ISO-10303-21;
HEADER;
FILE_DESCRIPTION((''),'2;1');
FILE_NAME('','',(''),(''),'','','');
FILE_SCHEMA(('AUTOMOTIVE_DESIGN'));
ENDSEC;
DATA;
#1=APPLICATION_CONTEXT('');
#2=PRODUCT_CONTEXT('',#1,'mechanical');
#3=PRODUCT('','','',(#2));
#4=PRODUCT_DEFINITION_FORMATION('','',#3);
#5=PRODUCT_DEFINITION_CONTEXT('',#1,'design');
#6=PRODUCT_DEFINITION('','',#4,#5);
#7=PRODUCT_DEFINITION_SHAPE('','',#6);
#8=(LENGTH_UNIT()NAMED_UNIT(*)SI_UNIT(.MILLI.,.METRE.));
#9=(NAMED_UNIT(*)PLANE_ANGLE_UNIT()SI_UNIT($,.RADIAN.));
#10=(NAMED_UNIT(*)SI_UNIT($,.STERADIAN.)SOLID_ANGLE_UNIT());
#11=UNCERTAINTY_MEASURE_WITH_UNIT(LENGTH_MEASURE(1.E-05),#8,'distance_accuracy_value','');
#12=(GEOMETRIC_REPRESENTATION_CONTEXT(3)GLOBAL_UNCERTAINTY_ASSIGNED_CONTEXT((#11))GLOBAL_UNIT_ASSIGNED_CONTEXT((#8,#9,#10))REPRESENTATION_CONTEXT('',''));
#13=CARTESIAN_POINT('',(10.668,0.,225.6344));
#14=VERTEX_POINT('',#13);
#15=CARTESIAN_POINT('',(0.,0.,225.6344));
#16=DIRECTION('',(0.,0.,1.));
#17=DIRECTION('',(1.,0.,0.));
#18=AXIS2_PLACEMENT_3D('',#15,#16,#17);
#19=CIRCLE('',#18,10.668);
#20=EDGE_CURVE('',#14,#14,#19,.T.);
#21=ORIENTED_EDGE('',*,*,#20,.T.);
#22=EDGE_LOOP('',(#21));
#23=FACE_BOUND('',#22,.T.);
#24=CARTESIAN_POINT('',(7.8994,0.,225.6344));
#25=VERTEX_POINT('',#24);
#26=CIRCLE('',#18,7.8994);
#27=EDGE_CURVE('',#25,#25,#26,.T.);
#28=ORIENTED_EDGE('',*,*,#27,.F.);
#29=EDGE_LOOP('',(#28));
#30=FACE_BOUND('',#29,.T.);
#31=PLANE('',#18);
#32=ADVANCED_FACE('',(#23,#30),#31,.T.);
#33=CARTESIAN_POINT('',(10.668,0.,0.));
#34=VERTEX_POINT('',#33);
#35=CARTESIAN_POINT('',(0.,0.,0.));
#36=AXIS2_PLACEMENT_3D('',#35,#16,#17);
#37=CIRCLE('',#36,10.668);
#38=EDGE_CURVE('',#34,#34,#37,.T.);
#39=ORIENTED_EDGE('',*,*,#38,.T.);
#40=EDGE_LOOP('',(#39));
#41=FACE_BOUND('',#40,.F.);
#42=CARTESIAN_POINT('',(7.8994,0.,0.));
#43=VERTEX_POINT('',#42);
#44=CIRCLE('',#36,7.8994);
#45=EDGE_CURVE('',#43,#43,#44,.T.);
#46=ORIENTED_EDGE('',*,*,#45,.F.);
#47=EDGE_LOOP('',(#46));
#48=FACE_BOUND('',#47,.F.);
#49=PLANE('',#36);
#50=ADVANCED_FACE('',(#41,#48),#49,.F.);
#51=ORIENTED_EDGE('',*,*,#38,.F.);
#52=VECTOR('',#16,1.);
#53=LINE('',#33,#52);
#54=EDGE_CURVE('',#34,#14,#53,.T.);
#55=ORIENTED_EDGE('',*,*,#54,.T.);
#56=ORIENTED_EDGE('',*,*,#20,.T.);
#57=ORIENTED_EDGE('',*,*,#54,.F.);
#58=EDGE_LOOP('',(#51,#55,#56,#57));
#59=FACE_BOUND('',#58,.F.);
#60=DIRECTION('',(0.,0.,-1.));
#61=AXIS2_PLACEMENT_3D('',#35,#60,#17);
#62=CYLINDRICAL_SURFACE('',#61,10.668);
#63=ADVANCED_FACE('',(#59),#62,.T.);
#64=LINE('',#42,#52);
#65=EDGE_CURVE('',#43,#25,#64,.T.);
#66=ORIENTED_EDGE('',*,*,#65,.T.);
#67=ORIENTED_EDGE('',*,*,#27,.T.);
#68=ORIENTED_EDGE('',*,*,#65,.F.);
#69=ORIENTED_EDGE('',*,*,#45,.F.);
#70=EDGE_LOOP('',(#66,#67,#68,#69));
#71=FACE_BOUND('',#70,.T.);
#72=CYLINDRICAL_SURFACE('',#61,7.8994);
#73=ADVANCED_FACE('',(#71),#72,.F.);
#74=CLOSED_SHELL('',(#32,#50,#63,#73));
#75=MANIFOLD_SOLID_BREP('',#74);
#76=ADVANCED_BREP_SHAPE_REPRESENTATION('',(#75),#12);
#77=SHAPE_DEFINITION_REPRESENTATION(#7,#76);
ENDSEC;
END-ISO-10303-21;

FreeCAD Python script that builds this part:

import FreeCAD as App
import Part
import Sketcher
from FreeCAD import Vector
Q = App.Units.Quantity

doc = App.newDocument("Part")
body = doc.addObject("PartDesign::Body", "Body")

# Sketch on XY plane
sketch1 = body.newObject("Sketcher::SketchObject", "Sketch")
sketch1.AttachmentSupport = (doc.getObject("XY_Plane"), [""])
sketch1.MapMode = "FlatFace"
sketch1.addGeometry([
    Part.Circle(Vector(0, 0, 0), Vector(0, 0, 1), 10.668),
    Part.Circle(Vector(0, 0, 0), Vector(0, 0, 1), 7.8994),
], False)
sketch1.addConstraint([
    Sketcher.Constraint("Coincident", 0, 3, -1, 1),
    Sketcher.Constraint("Coincident", 1, 3, -1, 1),
    Sketcher.Constraint("Diameter", 0, Q("0.84 in")),
    Sketcher.Constraint("Diameter", 1, Q("0.622 in")),
])
pad1 = body.newObject("PartDesign::Pad", "Pad")
pad1.Profile = sketch1
pad1.Length = 225.6344

doc.recompute()
